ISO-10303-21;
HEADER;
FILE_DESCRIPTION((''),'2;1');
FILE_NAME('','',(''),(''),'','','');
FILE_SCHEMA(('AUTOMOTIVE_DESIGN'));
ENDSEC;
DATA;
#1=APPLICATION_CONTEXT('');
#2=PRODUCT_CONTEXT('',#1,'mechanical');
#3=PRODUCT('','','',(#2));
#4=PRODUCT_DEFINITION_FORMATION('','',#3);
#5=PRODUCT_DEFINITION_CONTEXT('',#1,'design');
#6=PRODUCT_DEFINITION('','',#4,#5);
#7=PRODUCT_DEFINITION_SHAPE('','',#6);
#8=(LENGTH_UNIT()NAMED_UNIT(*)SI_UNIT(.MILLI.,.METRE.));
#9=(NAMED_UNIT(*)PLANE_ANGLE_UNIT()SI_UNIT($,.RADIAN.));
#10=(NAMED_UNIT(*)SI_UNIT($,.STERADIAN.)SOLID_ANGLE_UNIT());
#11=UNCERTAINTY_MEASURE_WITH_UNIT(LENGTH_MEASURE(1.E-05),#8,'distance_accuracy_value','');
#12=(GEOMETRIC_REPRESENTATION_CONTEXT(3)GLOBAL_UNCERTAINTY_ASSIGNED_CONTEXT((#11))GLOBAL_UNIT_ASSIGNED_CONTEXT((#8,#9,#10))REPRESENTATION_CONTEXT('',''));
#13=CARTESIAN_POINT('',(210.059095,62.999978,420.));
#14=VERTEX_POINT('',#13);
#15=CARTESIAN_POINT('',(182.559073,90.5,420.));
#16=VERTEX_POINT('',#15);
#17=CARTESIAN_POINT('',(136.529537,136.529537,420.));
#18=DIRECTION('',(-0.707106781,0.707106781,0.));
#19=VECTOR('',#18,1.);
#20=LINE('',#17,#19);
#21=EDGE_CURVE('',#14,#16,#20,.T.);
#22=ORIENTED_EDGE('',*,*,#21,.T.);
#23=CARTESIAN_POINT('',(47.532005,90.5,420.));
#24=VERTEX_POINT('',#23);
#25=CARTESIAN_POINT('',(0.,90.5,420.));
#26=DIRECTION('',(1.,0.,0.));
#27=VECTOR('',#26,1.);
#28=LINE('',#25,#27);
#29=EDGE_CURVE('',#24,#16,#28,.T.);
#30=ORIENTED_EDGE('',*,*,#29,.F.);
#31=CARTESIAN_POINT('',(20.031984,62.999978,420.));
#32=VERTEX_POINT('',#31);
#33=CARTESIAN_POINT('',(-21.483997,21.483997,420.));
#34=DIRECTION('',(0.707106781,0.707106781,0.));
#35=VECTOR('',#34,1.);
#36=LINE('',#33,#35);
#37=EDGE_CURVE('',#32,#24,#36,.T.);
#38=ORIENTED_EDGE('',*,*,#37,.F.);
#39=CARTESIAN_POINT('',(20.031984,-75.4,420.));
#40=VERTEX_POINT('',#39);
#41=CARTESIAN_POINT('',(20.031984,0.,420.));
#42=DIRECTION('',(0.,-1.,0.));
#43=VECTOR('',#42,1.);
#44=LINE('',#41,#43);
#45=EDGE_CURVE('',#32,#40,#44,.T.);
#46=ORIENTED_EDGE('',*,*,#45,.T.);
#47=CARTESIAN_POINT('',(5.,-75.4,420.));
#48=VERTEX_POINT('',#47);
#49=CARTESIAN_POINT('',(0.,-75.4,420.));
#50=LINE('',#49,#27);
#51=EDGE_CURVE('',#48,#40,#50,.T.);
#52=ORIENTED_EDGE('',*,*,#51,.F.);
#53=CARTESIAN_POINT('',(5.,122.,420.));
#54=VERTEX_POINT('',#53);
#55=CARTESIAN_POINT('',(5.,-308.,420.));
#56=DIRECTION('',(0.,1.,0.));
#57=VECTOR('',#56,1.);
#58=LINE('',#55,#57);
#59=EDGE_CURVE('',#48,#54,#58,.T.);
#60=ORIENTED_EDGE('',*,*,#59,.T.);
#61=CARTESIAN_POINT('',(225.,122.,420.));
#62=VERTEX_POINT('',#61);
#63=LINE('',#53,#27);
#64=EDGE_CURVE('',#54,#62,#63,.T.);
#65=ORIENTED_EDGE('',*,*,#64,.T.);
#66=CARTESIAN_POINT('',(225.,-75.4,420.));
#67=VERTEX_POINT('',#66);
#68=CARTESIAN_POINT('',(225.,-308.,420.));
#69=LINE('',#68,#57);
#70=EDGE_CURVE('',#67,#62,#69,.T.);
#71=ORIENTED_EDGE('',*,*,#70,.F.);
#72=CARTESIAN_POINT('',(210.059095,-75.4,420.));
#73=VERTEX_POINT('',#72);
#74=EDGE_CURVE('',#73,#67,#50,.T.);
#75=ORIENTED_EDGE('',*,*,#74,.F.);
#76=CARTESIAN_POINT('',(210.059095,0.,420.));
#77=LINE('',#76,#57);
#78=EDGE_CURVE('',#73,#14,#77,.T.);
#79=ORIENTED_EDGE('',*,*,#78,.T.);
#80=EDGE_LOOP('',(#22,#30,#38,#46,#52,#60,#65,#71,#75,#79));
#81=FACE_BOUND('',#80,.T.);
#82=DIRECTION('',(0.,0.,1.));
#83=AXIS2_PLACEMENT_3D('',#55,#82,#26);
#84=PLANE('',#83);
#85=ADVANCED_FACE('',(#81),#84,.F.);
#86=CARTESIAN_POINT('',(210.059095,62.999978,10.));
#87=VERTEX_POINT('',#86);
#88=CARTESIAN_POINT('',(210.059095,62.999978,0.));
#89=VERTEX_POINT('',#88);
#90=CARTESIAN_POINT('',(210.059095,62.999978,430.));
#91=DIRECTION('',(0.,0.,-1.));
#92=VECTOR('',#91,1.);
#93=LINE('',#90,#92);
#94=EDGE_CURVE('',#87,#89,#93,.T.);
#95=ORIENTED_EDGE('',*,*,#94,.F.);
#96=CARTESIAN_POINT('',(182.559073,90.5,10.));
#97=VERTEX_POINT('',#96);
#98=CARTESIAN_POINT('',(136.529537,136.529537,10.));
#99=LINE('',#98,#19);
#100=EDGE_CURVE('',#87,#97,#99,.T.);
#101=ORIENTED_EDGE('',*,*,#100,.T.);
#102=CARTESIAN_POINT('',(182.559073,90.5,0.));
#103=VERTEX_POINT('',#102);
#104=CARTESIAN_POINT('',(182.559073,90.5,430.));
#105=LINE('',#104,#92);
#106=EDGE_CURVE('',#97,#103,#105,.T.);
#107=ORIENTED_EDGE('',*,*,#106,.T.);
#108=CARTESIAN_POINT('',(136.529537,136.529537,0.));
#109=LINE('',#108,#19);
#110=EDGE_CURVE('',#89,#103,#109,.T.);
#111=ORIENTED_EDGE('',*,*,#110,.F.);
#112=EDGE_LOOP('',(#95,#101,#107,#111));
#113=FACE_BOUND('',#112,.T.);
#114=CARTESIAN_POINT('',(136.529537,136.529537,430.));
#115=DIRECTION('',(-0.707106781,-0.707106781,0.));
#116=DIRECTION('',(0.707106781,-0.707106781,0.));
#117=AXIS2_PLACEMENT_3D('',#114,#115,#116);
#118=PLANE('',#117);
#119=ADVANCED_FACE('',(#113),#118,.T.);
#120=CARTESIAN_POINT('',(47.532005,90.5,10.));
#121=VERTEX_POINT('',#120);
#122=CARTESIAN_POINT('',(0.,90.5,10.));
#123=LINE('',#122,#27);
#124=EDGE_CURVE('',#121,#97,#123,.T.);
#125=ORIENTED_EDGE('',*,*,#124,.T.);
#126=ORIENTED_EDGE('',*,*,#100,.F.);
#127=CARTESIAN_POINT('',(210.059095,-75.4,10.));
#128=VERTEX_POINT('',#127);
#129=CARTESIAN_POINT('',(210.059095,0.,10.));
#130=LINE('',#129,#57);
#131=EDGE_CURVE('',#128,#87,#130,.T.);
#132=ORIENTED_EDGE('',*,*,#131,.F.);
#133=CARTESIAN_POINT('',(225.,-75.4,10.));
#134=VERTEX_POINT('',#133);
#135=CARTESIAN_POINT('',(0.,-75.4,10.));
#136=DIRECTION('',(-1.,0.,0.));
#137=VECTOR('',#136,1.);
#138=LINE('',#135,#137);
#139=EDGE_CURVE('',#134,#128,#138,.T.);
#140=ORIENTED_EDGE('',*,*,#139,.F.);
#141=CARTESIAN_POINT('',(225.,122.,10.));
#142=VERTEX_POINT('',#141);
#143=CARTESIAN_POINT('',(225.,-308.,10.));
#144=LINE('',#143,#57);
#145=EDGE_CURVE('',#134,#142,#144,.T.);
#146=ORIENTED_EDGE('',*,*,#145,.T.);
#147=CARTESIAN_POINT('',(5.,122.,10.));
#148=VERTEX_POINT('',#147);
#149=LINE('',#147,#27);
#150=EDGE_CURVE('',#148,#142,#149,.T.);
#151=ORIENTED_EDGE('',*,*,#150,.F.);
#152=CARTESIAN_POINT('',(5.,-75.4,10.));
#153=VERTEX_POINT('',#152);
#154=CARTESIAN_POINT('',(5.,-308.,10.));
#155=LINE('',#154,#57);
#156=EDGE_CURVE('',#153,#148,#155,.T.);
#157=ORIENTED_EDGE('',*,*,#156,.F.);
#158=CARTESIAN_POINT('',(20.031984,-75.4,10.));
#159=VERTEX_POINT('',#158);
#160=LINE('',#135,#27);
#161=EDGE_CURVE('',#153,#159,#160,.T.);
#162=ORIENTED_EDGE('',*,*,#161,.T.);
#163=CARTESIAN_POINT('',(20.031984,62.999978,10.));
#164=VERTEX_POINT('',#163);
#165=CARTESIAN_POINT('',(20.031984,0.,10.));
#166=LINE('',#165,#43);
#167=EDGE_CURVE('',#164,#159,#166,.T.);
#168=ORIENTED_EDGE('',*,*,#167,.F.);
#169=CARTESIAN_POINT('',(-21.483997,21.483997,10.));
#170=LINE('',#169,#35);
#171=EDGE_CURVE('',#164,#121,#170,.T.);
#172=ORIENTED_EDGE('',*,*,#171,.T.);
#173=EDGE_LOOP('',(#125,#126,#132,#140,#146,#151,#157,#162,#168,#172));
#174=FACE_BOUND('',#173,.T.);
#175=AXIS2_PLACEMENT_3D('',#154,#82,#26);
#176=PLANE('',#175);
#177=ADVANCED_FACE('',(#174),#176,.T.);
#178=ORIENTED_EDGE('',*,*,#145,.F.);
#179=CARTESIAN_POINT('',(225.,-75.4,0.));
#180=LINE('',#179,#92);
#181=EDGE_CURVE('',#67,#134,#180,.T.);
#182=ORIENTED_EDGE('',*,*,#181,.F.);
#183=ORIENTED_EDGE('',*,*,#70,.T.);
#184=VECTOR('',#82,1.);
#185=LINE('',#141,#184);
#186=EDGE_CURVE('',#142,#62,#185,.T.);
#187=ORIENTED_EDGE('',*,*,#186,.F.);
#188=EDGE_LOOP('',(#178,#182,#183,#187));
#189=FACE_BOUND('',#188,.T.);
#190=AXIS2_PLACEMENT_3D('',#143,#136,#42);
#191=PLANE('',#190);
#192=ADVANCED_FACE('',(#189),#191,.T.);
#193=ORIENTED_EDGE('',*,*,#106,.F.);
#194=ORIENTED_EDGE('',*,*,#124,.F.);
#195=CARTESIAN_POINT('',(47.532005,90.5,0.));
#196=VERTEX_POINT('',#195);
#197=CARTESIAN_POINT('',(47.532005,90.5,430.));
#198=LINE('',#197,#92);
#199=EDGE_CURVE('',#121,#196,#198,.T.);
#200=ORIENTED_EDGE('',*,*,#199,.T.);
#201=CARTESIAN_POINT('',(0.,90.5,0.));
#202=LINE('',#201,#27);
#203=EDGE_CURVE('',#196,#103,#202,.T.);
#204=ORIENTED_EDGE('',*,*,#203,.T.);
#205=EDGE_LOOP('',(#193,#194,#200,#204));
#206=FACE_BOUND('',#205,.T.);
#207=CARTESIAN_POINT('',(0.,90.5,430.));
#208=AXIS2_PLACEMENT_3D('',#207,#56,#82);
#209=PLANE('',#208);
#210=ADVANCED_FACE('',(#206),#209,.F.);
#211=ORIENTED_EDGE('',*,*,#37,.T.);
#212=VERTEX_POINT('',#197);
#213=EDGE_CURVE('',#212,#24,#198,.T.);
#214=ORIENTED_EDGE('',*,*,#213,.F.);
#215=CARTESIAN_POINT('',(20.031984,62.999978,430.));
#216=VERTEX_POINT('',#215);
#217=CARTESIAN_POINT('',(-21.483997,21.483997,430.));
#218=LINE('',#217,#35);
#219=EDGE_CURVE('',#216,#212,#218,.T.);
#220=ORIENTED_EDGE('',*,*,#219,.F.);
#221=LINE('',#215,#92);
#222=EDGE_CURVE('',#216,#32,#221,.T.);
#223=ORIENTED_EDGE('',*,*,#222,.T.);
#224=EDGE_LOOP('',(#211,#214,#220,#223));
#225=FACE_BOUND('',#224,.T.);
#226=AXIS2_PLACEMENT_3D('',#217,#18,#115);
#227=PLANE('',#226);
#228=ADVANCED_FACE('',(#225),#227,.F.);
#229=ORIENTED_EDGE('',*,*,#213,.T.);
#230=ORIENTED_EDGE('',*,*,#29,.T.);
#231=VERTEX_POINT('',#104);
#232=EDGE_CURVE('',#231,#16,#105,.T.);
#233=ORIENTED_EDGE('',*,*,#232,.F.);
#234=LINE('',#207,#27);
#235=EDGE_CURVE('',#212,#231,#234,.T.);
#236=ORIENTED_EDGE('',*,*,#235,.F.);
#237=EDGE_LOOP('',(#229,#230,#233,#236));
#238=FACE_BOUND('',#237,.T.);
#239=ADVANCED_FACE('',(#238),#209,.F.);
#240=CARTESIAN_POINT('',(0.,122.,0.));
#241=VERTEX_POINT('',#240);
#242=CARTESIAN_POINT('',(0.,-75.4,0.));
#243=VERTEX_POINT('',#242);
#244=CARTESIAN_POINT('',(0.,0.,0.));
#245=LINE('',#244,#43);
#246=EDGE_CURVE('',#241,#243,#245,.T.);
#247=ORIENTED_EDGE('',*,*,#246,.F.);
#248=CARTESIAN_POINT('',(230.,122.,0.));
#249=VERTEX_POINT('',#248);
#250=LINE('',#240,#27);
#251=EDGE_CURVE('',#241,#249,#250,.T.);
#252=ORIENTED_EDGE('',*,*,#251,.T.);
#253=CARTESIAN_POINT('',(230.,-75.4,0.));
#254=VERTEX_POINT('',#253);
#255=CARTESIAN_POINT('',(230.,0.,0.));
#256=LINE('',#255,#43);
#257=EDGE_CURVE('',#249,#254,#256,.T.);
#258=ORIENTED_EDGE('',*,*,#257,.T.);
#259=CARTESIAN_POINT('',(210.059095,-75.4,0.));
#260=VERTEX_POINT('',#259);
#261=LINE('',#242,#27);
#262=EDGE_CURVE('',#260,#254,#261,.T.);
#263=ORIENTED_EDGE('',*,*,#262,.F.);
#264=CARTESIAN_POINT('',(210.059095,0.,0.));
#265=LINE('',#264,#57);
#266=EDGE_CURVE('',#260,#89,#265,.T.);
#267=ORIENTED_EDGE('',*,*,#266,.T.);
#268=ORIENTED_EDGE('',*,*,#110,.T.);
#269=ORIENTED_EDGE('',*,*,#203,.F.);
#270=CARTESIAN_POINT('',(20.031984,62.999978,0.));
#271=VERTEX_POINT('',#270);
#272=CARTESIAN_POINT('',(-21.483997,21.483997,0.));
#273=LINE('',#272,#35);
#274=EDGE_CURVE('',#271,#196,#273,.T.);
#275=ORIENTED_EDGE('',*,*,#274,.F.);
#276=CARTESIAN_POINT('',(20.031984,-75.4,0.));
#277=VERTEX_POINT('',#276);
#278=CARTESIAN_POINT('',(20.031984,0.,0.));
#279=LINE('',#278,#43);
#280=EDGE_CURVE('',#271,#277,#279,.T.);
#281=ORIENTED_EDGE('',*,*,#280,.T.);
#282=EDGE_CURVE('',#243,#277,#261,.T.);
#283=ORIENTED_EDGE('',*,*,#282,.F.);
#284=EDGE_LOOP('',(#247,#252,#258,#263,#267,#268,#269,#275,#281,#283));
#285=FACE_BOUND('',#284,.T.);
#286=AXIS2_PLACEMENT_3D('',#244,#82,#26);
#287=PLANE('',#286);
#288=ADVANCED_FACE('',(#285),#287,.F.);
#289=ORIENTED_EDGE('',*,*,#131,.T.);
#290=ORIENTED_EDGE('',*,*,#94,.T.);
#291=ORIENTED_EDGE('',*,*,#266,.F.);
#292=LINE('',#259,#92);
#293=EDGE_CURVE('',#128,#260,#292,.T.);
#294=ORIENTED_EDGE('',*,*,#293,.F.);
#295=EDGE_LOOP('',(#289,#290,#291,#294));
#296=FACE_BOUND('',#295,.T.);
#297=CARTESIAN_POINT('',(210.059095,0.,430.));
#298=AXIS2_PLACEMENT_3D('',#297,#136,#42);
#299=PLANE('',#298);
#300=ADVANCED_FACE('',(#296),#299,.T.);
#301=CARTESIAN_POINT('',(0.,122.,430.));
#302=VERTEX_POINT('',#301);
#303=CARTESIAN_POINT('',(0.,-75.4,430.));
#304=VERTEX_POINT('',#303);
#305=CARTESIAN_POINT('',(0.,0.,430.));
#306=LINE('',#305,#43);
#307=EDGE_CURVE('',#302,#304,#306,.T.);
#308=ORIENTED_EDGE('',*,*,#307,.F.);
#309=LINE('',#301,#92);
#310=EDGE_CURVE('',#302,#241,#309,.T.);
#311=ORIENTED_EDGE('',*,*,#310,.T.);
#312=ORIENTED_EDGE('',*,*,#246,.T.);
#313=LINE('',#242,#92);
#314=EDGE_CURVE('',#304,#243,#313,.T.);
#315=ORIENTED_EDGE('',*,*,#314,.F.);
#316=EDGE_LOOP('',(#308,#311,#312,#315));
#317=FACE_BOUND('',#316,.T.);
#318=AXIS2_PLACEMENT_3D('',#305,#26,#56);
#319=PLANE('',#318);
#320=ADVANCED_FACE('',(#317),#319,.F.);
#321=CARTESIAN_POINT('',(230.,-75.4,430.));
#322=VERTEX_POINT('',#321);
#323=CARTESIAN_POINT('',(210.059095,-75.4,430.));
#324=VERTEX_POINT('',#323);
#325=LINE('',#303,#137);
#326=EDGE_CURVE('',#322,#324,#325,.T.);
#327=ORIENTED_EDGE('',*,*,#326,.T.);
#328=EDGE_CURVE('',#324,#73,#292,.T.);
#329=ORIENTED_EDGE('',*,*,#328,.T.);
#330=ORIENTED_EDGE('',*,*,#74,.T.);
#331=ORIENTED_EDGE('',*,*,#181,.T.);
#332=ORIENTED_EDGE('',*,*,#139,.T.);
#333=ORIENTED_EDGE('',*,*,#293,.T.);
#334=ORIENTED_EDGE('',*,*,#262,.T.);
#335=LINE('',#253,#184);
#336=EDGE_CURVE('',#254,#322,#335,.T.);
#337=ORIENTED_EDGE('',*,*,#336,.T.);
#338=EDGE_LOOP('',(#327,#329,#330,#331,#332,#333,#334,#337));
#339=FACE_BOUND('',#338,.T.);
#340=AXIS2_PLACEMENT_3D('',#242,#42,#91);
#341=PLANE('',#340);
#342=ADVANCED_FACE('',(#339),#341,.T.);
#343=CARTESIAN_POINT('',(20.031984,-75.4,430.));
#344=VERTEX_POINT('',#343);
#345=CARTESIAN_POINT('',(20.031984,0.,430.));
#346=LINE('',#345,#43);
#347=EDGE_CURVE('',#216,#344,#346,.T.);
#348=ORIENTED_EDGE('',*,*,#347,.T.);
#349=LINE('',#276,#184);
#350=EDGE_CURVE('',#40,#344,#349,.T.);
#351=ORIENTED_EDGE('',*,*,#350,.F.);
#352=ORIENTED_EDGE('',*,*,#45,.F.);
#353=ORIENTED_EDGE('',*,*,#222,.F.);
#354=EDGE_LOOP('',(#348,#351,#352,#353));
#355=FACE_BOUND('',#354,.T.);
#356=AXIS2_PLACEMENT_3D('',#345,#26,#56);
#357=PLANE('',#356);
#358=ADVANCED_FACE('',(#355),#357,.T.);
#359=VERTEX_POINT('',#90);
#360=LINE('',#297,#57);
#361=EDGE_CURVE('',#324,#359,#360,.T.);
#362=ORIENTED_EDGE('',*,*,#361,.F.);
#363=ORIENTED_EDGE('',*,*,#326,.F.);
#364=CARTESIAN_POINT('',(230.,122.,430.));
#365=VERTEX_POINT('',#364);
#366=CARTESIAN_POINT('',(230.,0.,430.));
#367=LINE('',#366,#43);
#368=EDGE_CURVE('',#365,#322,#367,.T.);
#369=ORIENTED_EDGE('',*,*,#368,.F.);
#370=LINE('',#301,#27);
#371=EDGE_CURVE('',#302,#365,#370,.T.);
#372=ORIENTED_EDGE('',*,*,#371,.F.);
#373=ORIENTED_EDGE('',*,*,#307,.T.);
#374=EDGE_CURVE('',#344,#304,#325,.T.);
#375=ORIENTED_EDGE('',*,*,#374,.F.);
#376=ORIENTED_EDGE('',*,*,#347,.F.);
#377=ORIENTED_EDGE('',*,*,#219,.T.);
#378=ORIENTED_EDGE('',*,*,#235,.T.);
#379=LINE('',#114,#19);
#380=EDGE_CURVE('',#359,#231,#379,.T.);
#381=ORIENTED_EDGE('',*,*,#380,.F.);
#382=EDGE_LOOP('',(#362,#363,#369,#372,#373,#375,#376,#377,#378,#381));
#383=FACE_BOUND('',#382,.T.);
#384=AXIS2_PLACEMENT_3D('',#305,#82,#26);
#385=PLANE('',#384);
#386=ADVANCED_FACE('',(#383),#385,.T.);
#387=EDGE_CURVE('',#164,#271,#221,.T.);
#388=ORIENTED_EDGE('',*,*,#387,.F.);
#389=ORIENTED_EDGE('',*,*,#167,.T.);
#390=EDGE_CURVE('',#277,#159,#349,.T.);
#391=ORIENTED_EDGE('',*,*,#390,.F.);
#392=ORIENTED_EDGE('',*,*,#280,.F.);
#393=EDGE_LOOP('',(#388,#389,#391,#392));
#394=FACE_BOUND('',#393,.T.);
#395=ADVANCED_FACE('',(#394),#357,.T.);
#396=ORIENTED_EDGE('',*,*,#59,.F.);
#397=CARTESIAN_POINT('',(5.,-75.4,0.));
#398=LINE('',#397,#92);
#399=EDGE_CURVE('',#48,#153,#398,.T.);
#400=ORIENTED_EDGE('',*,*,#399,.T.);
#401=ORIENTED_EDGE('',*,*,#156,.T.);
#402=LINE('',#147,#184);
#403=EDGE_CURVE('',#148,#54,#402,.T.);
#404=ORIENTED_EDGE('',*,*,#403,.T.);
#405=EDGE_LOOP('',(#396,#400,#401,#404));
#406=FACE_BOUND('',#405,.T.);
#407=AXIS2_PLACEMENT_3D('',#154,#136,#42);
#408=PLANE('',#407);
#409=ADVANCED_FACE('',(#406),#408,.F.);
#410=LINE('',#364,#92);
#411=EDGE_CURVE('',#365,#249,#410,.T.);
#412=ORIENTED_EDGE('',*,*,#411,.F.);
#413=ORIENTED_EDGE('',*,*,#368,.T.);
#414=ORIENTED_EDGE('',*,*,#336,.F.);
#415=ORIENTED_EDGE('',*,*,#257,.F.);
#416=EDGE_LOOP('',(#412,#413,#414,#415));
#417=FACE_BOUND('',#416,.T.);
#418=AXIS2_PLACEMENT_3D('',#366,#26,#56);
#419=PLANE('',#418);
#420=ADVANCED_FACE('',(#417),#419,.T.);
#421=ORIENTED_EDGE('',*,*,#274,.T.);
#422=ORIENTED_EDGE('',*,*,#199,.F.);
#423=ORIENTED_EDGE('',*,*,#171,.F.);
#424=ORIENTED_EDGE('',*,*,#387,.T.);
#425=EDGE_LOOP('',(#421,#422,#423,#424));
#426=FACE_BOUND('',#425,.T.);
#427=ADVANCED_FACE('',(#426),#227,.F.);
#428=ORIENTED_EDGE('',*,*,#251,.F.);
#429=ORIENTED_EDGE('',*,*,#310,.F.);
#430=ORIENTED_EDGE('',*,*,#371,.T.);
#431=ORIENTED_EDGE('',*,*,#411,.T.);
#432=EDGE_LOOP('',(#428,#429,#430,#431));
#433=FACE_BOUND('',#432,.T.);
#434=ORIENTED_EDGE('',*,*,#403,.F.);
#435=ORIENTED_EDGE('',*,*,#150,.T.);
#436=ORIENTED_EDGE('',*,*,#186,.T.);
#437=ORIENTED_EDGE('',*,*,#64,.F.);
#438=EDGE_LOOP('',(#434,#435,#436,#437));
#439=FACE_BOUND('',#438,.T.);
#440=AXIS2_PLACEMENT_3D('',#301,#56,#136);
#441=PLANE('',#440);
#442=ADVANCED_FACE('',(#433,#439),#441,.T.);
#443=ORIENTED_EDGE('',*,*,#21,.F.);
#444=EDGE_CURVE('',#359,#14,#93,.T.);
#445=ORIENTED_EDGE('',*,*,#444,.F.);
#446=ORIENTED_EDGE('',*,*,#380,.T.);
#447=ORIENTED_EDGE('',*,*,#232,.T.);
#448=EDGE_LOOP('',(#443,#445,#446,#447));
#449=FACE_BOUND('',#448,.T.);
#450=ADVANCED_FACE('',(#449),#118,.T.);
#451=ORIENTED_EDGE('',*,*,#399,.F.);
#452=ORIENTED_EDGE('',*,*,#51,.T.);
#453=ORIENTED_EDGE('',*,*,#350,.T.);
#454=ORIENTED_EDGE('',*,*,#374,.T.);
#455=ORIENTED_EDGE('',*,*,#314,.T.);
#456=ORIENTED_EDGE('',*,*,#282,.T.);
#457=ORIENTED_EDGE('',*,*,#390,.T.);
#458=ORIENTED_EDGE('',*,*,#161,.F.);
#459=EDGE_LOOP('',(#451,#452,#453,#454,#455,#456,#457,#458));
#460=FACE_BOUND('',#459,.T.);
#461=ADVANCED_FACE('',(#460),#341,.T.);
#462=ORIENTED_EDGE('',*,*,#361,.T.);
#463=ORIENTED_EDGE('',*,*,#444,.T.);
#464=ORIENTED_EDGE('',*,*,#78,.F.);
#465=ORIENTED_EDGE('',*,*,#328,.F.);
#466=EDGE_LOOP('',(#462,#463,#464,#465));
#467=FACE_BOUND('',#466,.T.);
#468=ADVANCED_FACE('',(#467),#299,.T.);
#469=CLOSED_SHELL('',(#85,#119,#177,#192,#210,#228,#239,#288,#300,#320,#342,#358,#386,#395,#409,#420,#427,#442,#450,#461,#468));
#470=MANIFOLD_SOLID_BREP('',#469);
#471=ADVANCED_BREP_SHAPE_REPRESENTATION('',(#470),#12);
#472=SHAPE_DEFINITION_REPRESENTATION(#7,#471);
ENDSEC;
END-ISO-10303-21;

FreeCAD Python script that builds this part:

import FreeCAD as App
import Part
import Sketcher
Q = App.Units.Quantity

doc = App.newDocument("Part")
body = doc.addObject("PartDesign::Body", "Body")

sketch1 = body.newObject("Sketcher::SketchObject", "Sketch")
sketch1.AttachmentSupport = (doc.getObject("XY_Plane"), [""])
sketch1.MapMode = "FlatFace"
sketch1.addGeometry([
    Part.LineSegment(App.Vector(230, 122, 0), App.Vector(0, 122, 0)),
    Part.LineSegment(App.Vector(0, 122, 0), App.Vector(0, 0, 0)),
    Part.LineSegment(App.Vector(0, 0, 0), App.Vector(50, 0, 0)),
    Part.LineSegment(App.Vector(50, 0, 0), App.Vector(50, 30, 0)),
    Part.LineSegment(App.Vector(50, 30, 0), App.Vector(28.531984, 30, 0)),
    Part.LineSegment(App.Vector(28.531984, 30, 0), App.Vector(28.531984, 38.499978, 0)),
    Part.LineSegment(App.Vector(28.531984, 38.499978, 0), App.Vector(20.031984, 38.499978, 0)),
    Part.LineSegment(App.Vector(20.031984, 38.499978, 0), App.Vector(20.031984, 62.999978, 0)),
    Part.LineSegment(App.Vector(20.031984, 62.999978, 0), App.Vector(47.532005, 90.5, 0)),
    Part.LineSegment(App.Vector(47.532005, 90.5, 0), App.Vector(182.559073, 90.5, 0)),
    Part.LineSegment(App.Vector(182.559073, 90.5, 0), App.Vector(210.059095, 62.999978, 0)),
    Part.LineSegment(App.Vector(210.059095, 62.999978, 0), App.Vector(210.059095, 38.499978, 0)),
    Part.LineSegment(App.Vector(210.059095, 38.499978, 0), App.Vector(201.559095, 38.499978, 0)),
    Part.LineSegment(App.Vector(201.559095, 38.499978, 0), App.Vector(201.559095, 30, 0)),
    Part.LineSegment(App.Vector(201.559095, 30, 0), App.Vector(180, 30, 0)),
    Part.LineSegment(App.Vector(180, 30, 0), App.Vector(180, 0, 0)),
    Part.LineSegment(App.Vector(180, 0, 0), App.Vector(230, 0, 0)),
    Part.LineSegment(App.Vector(230, 0, 0), App.Vector(230, 122, 0)),
], False)
sketch1.addConstraint([
    Sketcher.Constraint("Coincident", 0, 2, 1, 1),
    Sketcher.Constraint("Coincident", 1, 2, 2, 1),
    Sketcher.Constraint("Coincident", 2, 2, 3, 1),
    Sketcher.Constraint("Coincident", 3, 2, 4, 1),
    Sketcher.Constraint("Coincident", 4, 2, 5, 1),
    Sketcher.Constraint("Coincident", 5, 2, 6, 1),
    Sketcher.Constraint("Coincident", 6, 2, 7, 1),
    Sketcher.Constraint("Coincident", 7, 2, 8, 1),
    Sketcher.Constraint("Coincident", 8, 2, 9, 1),
    Sketcher.Constraint("Coincident", 9, 2, 10, 1),
    Sketcher.Constraint("Coincident", 10, 2, 11, 1),
    Sketcher.Constraint("Coincident", 11, 2, 12, 1),
    Sketcher.Constraint("Coincident", 12, 2, 13, 1),
    Sketcher.Constraint("Coincident", 13, 2, 14, 1),
    Sketcher.Constraint("Coincident", 14, 2, 15, 1),
    Sketcher.Constraint("Coincident", 15, 2, 16, 1),
    Sketcher.Constraint("Coincident", 16, 2, 17, 1),
    Sketcher.Constraint("Coincident", 17, 2, 0, 1),
    Sketcher.Constraint("Horizontal", 0),
    Sketcher.Constraint("Vertical", 1),
    Sketcher.Constraint("Horizontal", 2),
    Sketcher.Constraint("Vertical", 3),
    Sketcher.Constraint("Horizontal", 4),
    Sketcher.Constraint("Vertical", 5),
    Sketcher.Constraint("Horizontal", 6),
    Sketcher.Constraint("Vertical", 7),
    Sketcher.Constraint("Horizontal", 9),
    Sketcher.Constraint("Vertical", 11),
    Sketcher.Constraint("Horizontal", 12),
    Sketcher.Constraint("Vertical", 13),
    Sketcher.Constraint("Horizontal", 14),
    Sketcher.Constraint("Vertical", 15),
    Sketcher.Constraint("Horizontal", 16),
    Sketcher.Constraint("Vertical", 17),
    Sketcher.Constraint("Coincident", 1, 2, -1, 1),
    Sketcher.Constraint("PointOnObject", 15, 2, -1),
    Sketcher.Constraint("Perpendicular", 8, 10),
    Sketcher.Constraint("Horizontal", 7, 2, 10, 2),
    Sketcher.Constraint("Horizontal", 6, 2, 11, 2),
    Sketcher.Constraint("Horizontal", 4, 2, 13, 2),
    Sketcher.Constraint("Equal", 6, 12),
    Sketcher.Constraint("Equal", 2, 16),
    Sketcher.Constraint("Equal", 8, 10),
    Sketcher.Constraint("DistanceX", 0, 2, 0, 1, Q("230 mm")),
    Sketcher.Constraint("DistanceX", 2, 1, 2, 2, Q("50 mm")),
    Sketcher.Constraint("DistanceY", 1, 2, 1, 1, Q("122 mm")),
    Sketcher.Constraint("DistanceY", 3, 1, 3, 2, Q("30 mm")),
    Sketcher.Constraint("DistanceX", 6, 2, 6, 1, Q("8.5 mm")),
    Sketcher.Constraint("DistanceY", 7, 1, 7, 2, Q("24.5 mm")),
    Sketcher.Constraint("DistanceY", -1, 1, 8, 2, Q("90.5 mm")),
    Sketcher.Constraint("DistanceX", 9, 1, 9, 2, Q("135.027068 mm")),
    Sketcher.Constraint("DistanceY", 5, 1, 5, 2, Q("8.499978 mm")),
    Sketcher.Constraint("DistanceX", 4, 2, 4, 1, Q("21.468016 mm")),
])
pad1 = body.newObject("PartDesign::Pad", "Pad")
pad1.Profile = sketch1
pad1.Length = 430

sketch2 = body.newObject("Sketcher::SketchObject", "Sketch001")
sketch2.AttachmentSupport = (doc.getObject("XZ_Plane"), [""])
sketch2.MapMode = "FlatFace"
sketch2.AttachmentOffset = App.Placement(App.Vector(0, 0, -122), App.Rotation())
sketch2.addGeometry([
    Part.LineSegment(App.Vector(5, 10, 0), App.Vector(5, 420, 0)),
    Part.LineSegment(App.Vector(5, 420, 0), App.Vector(225, 420, 0)),
    Part.LineSegment(App.Vector(225, 420, 0), App.Vector(225, 10, 0)),
    Part.LineSegment(App.Vector(225, 10, 0), App.Vector(5, 10, 0)),
], False)
sketch2.addConstraint([
    Sketcher.Constraint("Coincident", 0, 2, 1, 1),
    Sketcher.Constraint("Coincident", 1, 2, 2, 1),
    Sketcher.Constraint("Coincident", 2, 2, 3, 1),
    Sketcher.Constraint("Coincident", 3, 2, 0, 1),
    Sketcher.Constraint("Vertical", 0),
    Sketcher.Constraint("Horizontal", 1),
    Sketcher.Constraint("Vertical", 2),
    Sketcher.Constraint("Horizontal", 3),
    Sketcher.Constraint("DistanceX", 1, 1, 1, 2, Q("220 mm")),
    Sketcher.Constraint("DistanceY", 0, 1, 0, 2, Q("410 mm")),
    Sketcher.Constraint("DistanceX", -1, 1, 0, 2, Q("5 mm")),
    Sketcher.Constraint("DistanceY", -1, 1, 0, 2, Q("420 mm")),
])
pocket1 = body.newObject("PartDesign::Pocket", "Pocket")
pocket1.Profile = sketch2
pocket1.Length = 430
pocket1.Reversed = True

sketch3 = body.newObject("Sketcher::SketchObject", "Sketch002")
sketch3.AttachmentSupport = (doc.getObject("XY_Plane"), [""])
sketch3.MapMode = "FlatFace"
sketch3.AttachmentOffset = App.Placement(App.Vector(0, 0, 10), App.Rotation())
sketch3.addGeometry([
    Part.LineSegment(App.Vector(43, 30, 0), App.Vector(43, 0, 0)),
    Part.LineSegment(App.Vector(43, 0, 0), App.Vector(50, 0, 0)),
    Part.LineSegment(App.Vector(50, 0, 0), App.Vector(50, 30, 0)),
    Part.LineSegment(App.Vector(50, 30, 0), App.Vector(43, 30, 0)),
    Part.LineSegment(App.Vector(180, 30, 0), App.Vector(180, 0, 0)),
    Part.LineSegment(App.Vector(180, 0, 0), App.Vector(187, 0, 0)),
    Part.LineSegment(App.Vector(187, 0, 0), App.Vector(187, 30, 0)),
    Part.LineSegment(App.Vector(187, 30, 0), App.Vector(180, 30, 0)),
], False)
sketch3.addConstraint([
    Sketcher.Constraint("Coincident", 0, 2, 1, 1),
    Sketcher.Constraint("Coincident", 1, 2, 2, 1),
    Sketcher.Constraint("Coincident", 2, 2, 3, 1),
    Sketcher.Constraint("Coincident", 3, 2, 0, 1),
    Sketcher.Constraint("Coincident", 4, 2, 5, 1),
    Sketcher.Constraint("Coincident", 5, 2, 6, 1),
    Sketcher.Constraint("Coincident", 6, 2, 7, 1),
    Sketcher.Constraint("Coincident", 7, 2, 4, 1),
    Sketcher.Constraint("Vertical", 0),
    Sketcher.Constraint("Horizontal", 1),
    Sketcher.Constraint("Vertical", 2),
    Sketcher.Constraint("Horizontal", 3),
    Sketcher.Constraint("Vertical", 4),
    Sketcher.Constraint("Horizontal", 5),
    Sketcher.Constraint("Vertical", 6),
    Sketcher.Constraint("Horizontal", 7),
    Sketcher.Constraint("PointOnObject", 0, 2, -1),
    Sketcher.Constraint("PointOnObject", 4, 2, -1),
    Sketcher.Constraint("Horizontal", 3, 2, 6, 2),
    Sketcher.Constraint("Equal", 3, 5),
    Sketcher.Constraint("DistanceX", 1, 1, 1, 2, Q("7 mm")),
    Sketcher.Constraint("DistanceY", 0, 2, 0, 1, Q("30 mm")),
    Sketcher.Constraint("DistanceX", -1, 1, 0, 2, Q("43 mm")),
    Sketcher.Constraint("DistanceX", -1, 1, 4, 2, Q("180 mm")),
])
pad2 = body.newObject("PartDesign::Pad", "Pad001")
pad2.Profile = sketch3
pad2.Length = 30

sketch4 = body.newObject("Sketcher::SketchObject", "Sketch003")
sketch4.AttachmentSupport = (doc.getObject("XY_Plane"), [""])
sketch4.MapMode = "FlatFace"
sketch4.AttachmentOffset = App.Placement(App.Vector(0, 0, 420), App.Rotation())
sketch4.addGeometry([
    Part.LineSegment(App.Vector(187, 30, 0), App.Vector(187, 0, 0)),
    Part.LineSegment(App.Vector(187, 0, 0), App.Vector(180, 0, 0)),
    Part.LineSegment(App.Vector(180, 0, 0), App.Vector(180, 30, 0)),
    Part.LineSegment(App.Vector(180, 30, 0), App.Vector(187, 30, 0)),
    Part.LineSegment(App.Vector(50, 30, 0), App.Vector(50, 0, 0)),
    Part.LineSegment(App.Vector(50, 0, 0), App.Vector(43, 0, 0)),
    Part.LineSegment(App.Vector(43, 0, 0), App.Vector(43, 30, 0)),
    Part.LineSegment(App.Vector(43, 30, 0), App.Vector(50, 30, 0)),
], False)
sketch4.addConstraint([
    Sketcher.Constraint("Coincident", 0, 2, 1, 1),
    Sketcher.Constraint("Coincident", 1, 2, 2, 1),
    Sketcher.Constraint("Coincident", 2, 2, 3, 1),
    Sketcher.Constraint("Coincident", 3, 2, 0, 1),
    Sketcher.Constraint("Coincident", 4, 2, 5, 1),
    Sketcher.Constraint("Coincident", 5, 2, 6, 1),
    Sketcher.Constraint("Coincident", 6, 2, 7, 1),
    Sketcher.Constraint("Coincident", 7, 2, 4, 1),
    Sketcher.Constraint("Vertical", 0),
    Sketcher.Constraint("Horizontal", 1),
    Sketcher.Constraint("Vertical", 2),
    Sketcher.Constraint("Horizontal", 3),
    Sketcher.Constraint("Vertical", 4),
    Sketcher.Constraint("Horizontal", 5),
    Sketcher.Constraint("Vertical", 6),
    Sketcher.Constraint("Horizontal", 7),
    Sketcher.Constraint("PointOnObject", 0, 2, -1),
    Sketcher.Constraint("PointOnObject", 4, 2, -1),
    Sketcher.Constraint("Horizontal", 3, 2, 6, 2),
    Sketcher.Constraint("Equal", 3, 5),
    Sketcher.Constraint("DistanceX", 1, 2, 1, 1, Q("7 mm")),
    Sketcher.Constraint("DistanceY", 0, 2, 0, 1, Q("30 mm")),
    Sketcher.Constraint("DistanceX", -1, 1, 0, 2, Q("187 mm")),
    Sketcher.Constraint("DistanceX", -1, 1, 4, 2, Q("50 mm")),
])
pad3 = body.newObject("PartDesign::Pad", "Pad002")
pad3.Profile = sketch4
pad3.Length = 30
pad3.Reversed = True

sketch5 = body.newObject("Sketcher::SketchObject", "Sketch004")
sketch5.AttachmentSupport = (doc.getObject("XZ_Plane"), [""])
sketch5.MapMode = "FlatFace"
sketch5.addGeometry([
    Part.LineSegment(App.Vector(50, 430, 0), App.Vector(0, 430, 0)),
    Part.LineSegment(App.Vector(0, 430, 0), App.Vector(0, 0, 0)),
    Part.LineSegment(App.Vector(0, 0, 0), App.Vector(50, 0, 0)),
    Part.LineSegment(App.Vector(50, 0, 0), App.Vector(50, 40, 0)),
    Part.LineSegment(App.Vector(50, 40, 0), App.Vector(43, 40, 0)),
    Part.LineSegment(App.Vector(43, 40, 0), App.Vector(43, 10, 0)),
    Part.LineSegment(App.Vector(43, 10, 0), App.Vector(5, 10, 0)),
    Part.LineSegment(App.Vector(5, 10, 0), App.Vector(5, 420, 0)),
    Part.LineSegment(App.Vector(5, 420, 0), App.Vector(43, 420, 0)),
    Part.LineSegment(App.Vector(43, 420, 0), App.Vector(43, 390, 0)),
    Part.LineSegment(App.Vector(43, 390, 0), App.Vector(50, 390, 0)),
    Part.LineSegment(App.Vector(50, 390, 0), App.Vector(50, 430, 0)),
    Part.LineSegment(App.Vector(187, 420, 0), App.Vector(225, 420, 0)),
    Part.LineSegment(App.Vector(225, 420, 0), App.Vector(225, 10, 0)),
    Part.LineSegment(App.Vector(225, 10, 0), App.Vector(187, 10, 0)),
    Part.LineSegment(App.Vector(187, 10, 0), App.Vector(187, 40, 0)),
    Part.LineSegment(App.Vector(187, 40, 0), App.Vector(180, 40, 0)),
    Part.LineSegment(App.Vector(180, 40, 0), App.Vector(180, 0, 0)),
    Part.LineSegment(App.Vector(180, 0, 0), App.Vector(230, 0, 0)),
    Part.LineSegment(App.Vector(230, 0, 0), App.Vector(230, 430, 0)),
    Part.LineSegment(App.Vector(230, 430, 0), App.Vector(180, 430, 0)),
    Part.LineSegment(App.Vector(180, 430, 0), App.Vector(180, 390, 0)),
    Part.LineSegment(App.Vector(180, 390, 0), App.Vector(187, 390, 0)),
    Part.LineSegment(App.Vector(187, 390, 0), App.Vector(187, 420, 0)),
], False)
sketch5.addConstraint([
    Sketcher.Constraint("Coincident", 0, 2, 1, 1),
    Sketcher.Constraint("Coincident", 1, 2, 2, 1),
    Sketcher.Constraint("Coincident", 2, 2, 3, 1),
    Sketcher.Constraint("Coincident", 3, 2, 4, 1),
    Sketcher.Constraint("Coincident", 4, 2, 5, 1),
    Sketcher.Constraint("Coincident", 5, 2, 6, 1),
    Sketcher.Constraint("Coincident", 6, 2, 7, 1),
    Sketcher.Constraint("Coincident", 7, 2, 8, 1),
    Sketcher.Constraint("Coincident", 8, 2, 9, 1),
    Sketcher.Constraint("Coincident", 9, 2, 10, 1),
    Sketcher.Constraint("Coincident", 10, 2, 11, 1),
    Sketcher.Constraint("Coincident", 11, 2, 0, 1),
    Sketcher.Constraint("Coincident", 12, 2, 13, 1),
    Sketcher.Constraint("Coincident", 13, 2, 14, 1),
    Sketcher.Constraint("Coincident", 14, 2, 15, 1),
    Sketcher.Constraint("Coincident", 15, 2, 16, 1),
    Sketcher.Constraint("Coincident", 16, 2, 17, 1),
    Sketcher.Constraint("Coincident", 17, 2, 18, 1),
    Sketcher.Constraint("Coincident", 18, 2, 19, 1),
    Sketcher.Constraint("Coincident", 19, 2, 20, 1),
    Sketcher.Constraint("Coincident", 20, 2, 21, 1),
    Sketcher.Constraint("Coincident", 21, 2, 22, 1),
    Sketcher.Constraint("Coincident", 22, 2, 23, 1),
    Sketcher.Constraint("Coincident", 23, 2, 12, 1),
    Sketcher.Constraint("Horizontal", 0),
    Sketcher.Constraint("Vertical", 1),
    Sketcher.Constraint("Horizontal", 2),
    Sketcher.Constraint("Vertical", 3),
    Sketcher.Constraint("Horizontal", 4),
    Sketcher.Constraint("Vertical", 5),
    Sketcher.Constraint("Horizontal", 6),
    Sketcher.Constraint("Vertical", 7),
    Sketcher.Constraint("Horizontal", 8),
    Sketcher.Constraint("Vertical", 9),
    Sketcher.Constraint("Horizontal", 10),
    Sketcher.Constraint("Vertical", 11),
    Sketcher.Constraint("Horizontal", 12),
    Sketcher.Constraint("Vertical", 13),
    Sketcher.Constraint("Horizontal", 14),
    Sketcher.Constraint("Vertical", 15),
    Sketcher.Constraint("Horizontal", 16),
    Sketcher.Constraint("Vertical", 17),
    Sketcher.Constraint("Horizontal", 18),
    Sketcher.Constraint("Vertical", 19),
    Sketcher.Constraint("Horizontal", 20),
    Sketcher.Constraint("Vertical", 21),
    Sketcher.Constraint("Horizontal", 22),
    Sketcher.Constraint("Vertical", 23),
    Sketcher.Constraint("Coincident", 1, 2, -1, 1),
    Sketcher.Constraint("PointOnObject", 17, 2, -1),
    Sketcher.Constraint("Horizontal", 8, 2, 12, 2),
    Sketcher.Constraint("Horizontal", 6, 2, 13, 2),
    Sketcher.Constraint("Horizontal", 4, 2, 15, 2),
    Sketcher.Constraint("Horizontal", 11, 2, 19, 2),
    Sketcher.Constraint("Horizontal", 10, 2, 21, 2),
    Sketcher.Constraint("Vertical", 5, 2, 8, 2),
    Sketcher.Constraint("Vertical", 3, 2, 10, 2),
    Sketcher.Constraint("Vertical", 17, 2, 20, 2),
    Sketcher.Constraint("Vertical", 15, 2, 22, 2),
    Sketcher.Constraint("Equal", 8, 12),
    Sketcher.Constraint("Equal", 10, 16),
    Sketcher.Constraint("Equal", 2, 18),
    Sketcher.Constraint("Equal", 5, 9),
    Sketcher.Constraint("Equal", 3, 11),
    Sketcher.Constraint("DistanceX", 0, 2, 0, 1, Q("50 mm")),
    Sketcher.Constraint("DistanceX", 4, 2, 4, 1, Q("7 mm")),
    Sketcher.Constraint("DistanceX", 6, 2, 6, 1, Q("38 mm")),
    Sketcher.Constraint("DistanceY", 1, 2, 1, 1, Q("430 mm")),
    Sketcher.Constraint("DistanceY", 3, 1, 3, 2, Q("40 mm")),
    Sketcher.Constraint("DistanceY", 5, 2, 5, 1, Q("30 mm")),
    Sketcher.Constraint("DistanceX", -1, 1, 12, 2, Q("225 mm")),
])
pad4 = body.newObject("PartDesign::Pad", "Pad003")
pad4.Profile = sketch5
pad4.Length = 28

sketch6 = body.newObject("Sketcher::SketchObject", "Sketch005")
sketch6.AttachmentSupport = (doc.getObject("XY_Plane"), [""])
sketch6.MapMode = "FlatFace"
sketch6.addGeometry([
    Part.LineSegment(App.Vector(201.559095, 38.499978, 0), App.Vector(210.059095, 38.499978, 0)),
    Part.LineSegment(App.Vector(210.059095, 38.499978, 0), App.Vector(210.059095, -28, 0)),
    Part.LineSegment(App.Vector(210.059095, -28, 0), App.Vector(180, -28, 0)),
    Part.LineSegment(App.Vector(180, -28, 0), App.Vector(180, 30, 0)),
    Part.LineSegment(App.Vector(180, 30, 0), App.Vector(201.559095, 30, 0)),
    Part.LineSegment(App.Vector(201.559095, 30, 0), App.Vector(201.559095, 38.499978, 0)),
    Part.LineSegment(App.Vector(28.531984, 30, 0), App.Vector(50, 30, 0)),
    Part.LineSegment(App.Vector(50, 30, 0), App.Vector(50, -28, 0)),
    Part.LineSegment(App.Vector(50, -28, 0), App.Vector(20.031984, -28, 0)),
    Part.LineSegment(App.Vector(20.031984, -28, 0), App.Vector(20.031984, 38.499978, 0)),
    Part.LineSegment(App.Vector(20.031984, 38.499978, 0), App.Vector(28.531984, 38.499978, 0)),
    Part.LineSegment(App.Vector(28.531984, 38.499978, 0), App.Vector(28.531984, 30, 0)),
], False)
sketch6.addConstraint([
    Sketcher.Constraint("Coincident", 0, 2, 1, 1),
    Sketcher.Constraint("Coincident", 1, 2, 2, 1),
    Sketcher.Constraint("Coincident", 2, 2, 3, 1),
    Sketcher.Constraint("Coincident", 3, 2, 4, 1),
    Sketcher.Constraint("Coincident", 4, 2, 5, 1),
    Sketcher.Constraint("Coincident", 5, 2, 0, 1),
    Sketcher.Constraint("Coincident", 6, 2, 7, 1),
    Sketcher.Constraint("Coincident", 7, 2, 8, 1),
    Sketcher.Constraint("Coincident", 8, 2, 9, 1),
    Sketcher.Constraint("Coincident", 9, 2, 10, 1),
    Sketcher.Constraint("Coincident", 10, 2, 11, 1),
    Sketcher.Constraint("Coincident", 11, 2, 6, 1),
    Sketcher.Constraint("Horizontal", 0),
    Sketcher.Constraint("Vertical", 1),
    Sketcher.Constraint("Horizontal", 2),
    Sketcher.Constraint("Vertical", 3),
    Sketcher.Constraint("Horizontal", 4),
    Sketcher.Constraint("Vertical", 5),
    Sketcher.Constraint("Horizontal", 6),
    Sketcher.Constraint("Vertical", 7),
    Sketcher.Constraint("Horizontal", 8),
    Sketcher.Constraint("Vertical", 9),
    Sketcher.Constraint("Horizontal", 10),
    Sketcher.Constraint("Vertical", 11),
    Sketcher.Constraint("Horizontal", 4, 2, 6, 2),
    Sketcher.Constraint("Horizontal", 2, 2, 7, 2),
    Sketcher.Constraint("Horizontal", 5, 2, 9, 2),
    Sketcher.Constraint("Equal", 0, 10),
    Sketcher.Constraint("DistanceY", 3, 1, 3, 2, Q("58 mm")),
    Sketcher.Constraint("DistanceX", 0, 1, 0, 2, Q("8.5 mm")),
    Sketcher.Constraint("DistanceY", 1, 2, -1, 1, Q("28 mm")),
    Sketcher.Constraint("DistanceX", -1, 1, 2, 2, Q("180 mm")),
    Sketcher.Constraint("DistanceX", -1, 1, 6, 2, Q("50 mm")),
    Sketcher.Constraint("DistanceY", 1, 2, 1, 1, Q("66.499978 mm")),
    Sketcher.Constraint("DistanceX", 2, 2, 2, 1, Q("30.059095 mm")),
    Sketcher.Constraint("DistanceX", 6, 1, 6, 2, Q("21.468016 mm")),
])
pocket2 = body.newObject("PartDesign::Pocket", "Pocket001")
pocket2.Profile = sketch6
pocket2.Length = 430
pocket2.Reversed = True

sketch7 = body.newObject("Sketcher::SketchObject", "Sketch006")
sketch7.AttachmentSupport = (doc.getObject("XZ_Plane"), [""])
sketch7.MapMode = "FlatFace"
sketch7.AttachmentOffset = App.Placement(App.Vector(0, 0, 28), App.Rotation())
sketch7.addGeometry([
    Part.LineSegment(App.Vector(210.059095, 0, 0), App.Vector(230, 0, 0)),
    Part.LineSegment(App.Vector(230, 0, 0), App.Vector(230, 430, 0)),
    Part.LineSegment(App.Vector(230, 430, 0), App.Vector(210.059095, 430, 0)),
    Part.LineSegment(App.Vector(210.059095, 430, 0), App.Vector(210.059095, 420, 0)),
    Part.LineSegment(App.Vector(210.059095, 420, 0), App.Vector(225, 420, 0)),
    Part.LineSegment(App.Vector(225, 420, 0), App.Vector(225, 10, 0)),
    Part.LineSegment(App.Vector(225, 10, 0), App.Vector(210.059095, 10, 0)),
    Part.LineSegment(App.Vector(210.059095, 10, 0), App.Vector(210.059095, 0, 0)),
    Part.LineSegment(App.Vector(5, 10, 0), App.Vector(5, 420, 0)),
    Part.LineSegment(App.Vector(5, 420, 0), App.Vector(20.031984, 420, 0)),
    Part.LineSegment(App.Vector(20.031984, 420, 0), App.Vector(20.031984, 430, 0)),
    Part.LineSegment(App.Vector(20.031984, 430, 0), App.Vector(0, 430, 0)),
    Part.LineSegment(App.Vector(0, 430, 0), App.Vector(0, 0, 0)),
    Part.LineSegment(App.Vector(0, 0, 0), App.Vector(20.031984, 0, 0)),
    Part.LineSegment(App.Vector(20.031984, 0, 0), App.Vector(20.031984, 10, 0)),
    Part.LineSegment(App.Vector(20.031984, 10, 0), App.Vector(5, 10, 0)),
], False)
sketch7.addConstraint([
    Sketcher.Constraint("Coincident", 0, 2, 1, 1),
    Sketcher.Constraint("Coincident", 1, 2, 2, 1),
    Sketcher.Constraint("Coincident", 2, 2, 3, 1),
    Sketcher.Constraint("Coincident", 3, 2, 4, 1),
    Sketcher.Constraint("Coincident", 4, 2, 5, 1),
    Sketcher.Constraint("Coincident", 5, 2, 6, 1),
    Sketcher.Constraint("Coincident", 6, 2, 7, 1),
    Sketcher.Constraint("Coincident", 7, 2, 0, 1),
    Sketcher.Constraint("Coincident", 8, 2, 9, 1),
    Sketcher.Constraint("Coincident", 9, 2, 10, 1),
    Sketcher.Constraint("Coincident", 10, 2, 11, 1),
    Sketcher.Constraint("Coincident", 11, 2, 12, 1),
    Sketcher.Constraint("Coincident", 12, 2, 13, 1),
    Sketcher.Constraint("Coincident", 13, 2, 14, 1),
    Sketcher.Constraint("Coincident", 14, 2, 15, 1),
    Sketcher.Constraint("Coincident", 15, 2, 8, 1),
    Sketcher.Constraint("Horizontal", 0),
    Sketcher.Constraint("Vertical", 1),
    Sketcher.Constraint("Horizontal", 2),
    Sketcher.Constraint("Vertical", 3),
    Sketcher.Constraint("Horizontal", 4),
    Sketcher.Constraint("Vertical", 5),
    Sketcher.Constraint("Horizontal", 6),
    Sketcher.Constraint("Vertical", 7),
    Sketcher.Constraint("Vertical", 8),
    Sketcher.Constraint("Horizontal", 9),
    Sketcher.Constraint("Vertical", 10),
    Sketcher.Constraint("Horizontal", 11),
    Sketcher.Constraint("Vertical", 12),
    Sketcher.Constraint("Horizontal", 13),
    Sketcher.Constraint("Vertical", 14),
    Sketcher.Constraint("Horizontal", 15),
    Sketcher.Constraint("Coincident", 12, 2, -1, 1),
    Sketcher.Constraint("PointOnObject", 0, 2, -1),
    Sketcher.Constraint("Horizontal", 4, 2, 8, 2),
    Sketcher.Constraint("Horizontal", 2, 2, 10, 2),
    Sketcher.Constraint("Horizontal", 6, 2, 14, 2),
    Sketcher.Constraint("Vertical", 3, 2, 6, 2),
    Sketcher.Constraint("Vertical", 10, 2, 13, 2),
    Sketcher.Constraint("Equal", 3, 7),
    Sketcher.Constraint("DistanceY", 1, 1, 1, 2, Q("430 mm")),
    Sketcher.Constraint("DistanceY", 3, 2, 3, 1, Q("10 mm")),
    Sketcher.Constraint("DistanceX", -1, 1, 0, 2, Q("230 mm")),
    Sketcher.Constraint("DistanceX", -1, 1, 4, 2, Q("225 mm")),
    Sketcher.Constraint("DistanceX", -1, 1, 8, 2, Q("5 mm")),
    Sketcher.Constraint("DistanceX", 0, 1, 0, 2, Q("19.940905 mm")),
    Sketcher.Constraint("DistanceX", 9, 1, 9, 2, Q("15.031984 mm")),
])
pad5 = body.newObject("PartDesign::Pad", "Pad004")
pad5.Profile = sketch7
pad5.Length = 38.4

sketch8 = body.newObject("Sketcher::SketchObject", "Sketch007")
sketch8.AttachmentSupport = (doc.getObject("YZ_Plane"), [""])
sketch8.MapMode = "FlatFace"
sketch8.addGeometry([
    Part.LineSegment(App.Vector(-60.4, 0, 0), App.Vector(-66.4, 0, 0)),
    Part.LineSegment(App.Vector(-66.4, 0, 0), App.Vector(-66.4, 430, 0)),
    Part.LineSegment(App.Vector(-66.4, 430, 0), App.Vector(-60.4, 430, 0)),
    Part.LineSegment(App.Vector(-60.4, 430, 0), App.Vector(-60.4, 0, 0)),
], False)
sketch8.addConstraint([
    Sketcher.Constraint("Coincident", 0, 2, 1, 1),
    Sketcher.Constraint("Coincident", 1, 2, 2, 1),
    Sketcher.Constraint("Coincident", 2, 2, 3, 1),
    Sketcher.Constraint("Coincident", 3, 2, 0, 1),
    Sketcher.Constraint("Horizontal", 0),
    Sketcher.Constraint("Vertical", 1),
    Sketcher.Constraint("Horizontal", 2),
    Sketcher.Constraint("Vertical", 3),
    Sketcher.Constraint("PointOnObject", 0, 2, -1),
    Sketcher.Constraint("DistanceX", 0, 2, 0, 1, Q("6 mm")),
    Sketcher.Constraint("DistanceY", 1, 1, 1, 2, Q("430 mm")),
    Sketcher.Constraint("DistanceX", 0, 2, -1, 1, Q("66.4 mm")),
])
pocket3 = body.newObject("PartDesign::Pocket", "Pocket002")
pocket3.Profile = sketch8
pocket3.Length = 500
pocket3.Reversed = True

sketch9 = body.newObject("Sketcher::SketchObject", "Sketch008")
sketch9.AttachmentSupport = (doc.getObject("XZ_Plane"), [""])
sketch9.MapMode = "FlatFace"
sketch9.AttachmentOffset = App.Placement(App.Vector(0, 0, 60.4), App.Rotation())
sketch9.addGeometry([
    Part.LineSegment(App.Vector(5, 420, 0), App.Vector(20.031984, 420, 0)),
    Part.LineSegment(App.Vector(20.031984, 420, 0), App.Vector(20.031984, 430, 0)),
    Part.LineSegment(App.Vector(20.031984, 430, 0), App.Vector(0, 430, 0)),
    Part.LineSegment(App.Vector(0, 430, 0), App.Vector(0, 0, 0)),
    Part.LineSegment(App.Vector(0, 0, 0), App.Vector(20.031984, 0, 0)),
    Part.LineSegment(App.Vector(20.031984, 0, 0), App.Vector(20.031984, 10, 0)),
    Part.LineSegment(App.Vector(20.031984, 10, 0), App.Vector(5, 10, 0)),
    Part.LineSegment(App.Vector(5, 10, 0), App.Vector(5, 420, 0)),
], False)
sketch9.addConstraint([
    Sketcher.Constraint("Coincident", 0, 2, 1, 1),
    Sketcher.Constraint("Coincident", 1, 2, 2, 1),
    Sketcher.Constraint("Coincident", 2, 2, 3, 1),
    Sketcher.Constraint("Coincident", 3, 2, 4, 1),
    Sketcher.Constraint("Coincident", 4, 2, 5, 1),
    Sketcher.Constraint("Coincident", 5, 2, 6, 1),
    Sketcher.Constraint("Coincident", 6, 2, 7, 1),
    Sketcher.Constraint("Coincident", 7, 2, 0, 1),
    Sketcher.Constraint("Horizontal", 0),
    Sketcher.Constraint("Vertical", 1),
    Sketcher.Constraint("Horizontal", 2),
    Sketcher.Constraint("Vertical", 3),
    Sketcher.Constraint("Horizontal", 4),
    Sketcher.Constraint("Vertical", 5),
    Sketcher.Constraint("Horizontal", 6),
    Sketcher.Constraint("Vertical", 7),
    Sketcher.Constraint("Coincident", 3, 2, -1, 1),
    Sketcher.Constraint("Vertical", 1, 2, 4, 2),
    Sketcher.Constraint("Equal", 1, 5),
    Sketcher.Constraint("DistanceY", 1, 1, 1, 2, Q("10 mm")),
    Sketcher.Constraint("DistanceY", 3, 2, 3, 1, Q("430 mm")),
    Sketcher.Constraint("DistanceX", -1, 1, 6, 2, Q("5 mm")),
    Sketcher.Constraint("DistanceX", 0, 1, 0, 2, Q("15.031984 mm")),
])
pad6 = body.newObject("PartDesign::Pad", "Pad005")
pad6.Profile = sketch9
pad6.Length = 15

sketch10 = body.newObject("Sketcher::SketchObject", "Sketch009")
sketch10.AttachmentSupport = (doc.getObject("XZ_Plane"), [""])
sketch10.MapMode = "FlatFace"
sketch10.AttachmentOffset = App.Placement(App.Vector(0, 0, 60.4), App.Rotation())
sketch10.addGeometry([
    Part.LineSegment(App.Vector(210.059095, 430, 0), App.Vector(210.059095, 420, 0)),
    Part.LineSegment(App.Vector(210.059095, 420, 0), App.Vector(225, 420, 0)),
    Part.LineSegment(App.Vector(225, 420, 0), App.Vector(225, 10, 0)),
    Part.LineSegment(App.Vector(225, 10, 0), App.Vector(210.059095, 10, 0)),
    Part.LineSegment(App.Vector(210.059095, 10, 0), App.Vector(210.059095, 0, 0)),
    Part.LineSegment(App.Vector(210.059095, 0, 0), App.Vector(230, 0, 0)),
    Part.LineSegment(App.Vector(230, 0, 0), App.Vector(230, 430, 0)),
    Part.LineSegment(App.Vector(230, 430, 0), App.Vector(210.059095, 430, 0)),
], False)
sketch10.addConstraint([
    Sketcher.Constraint("Coincident", 0, 2, 1, 1),
    Sketcher.Constraint("Coincident", 1, 2, 2, 1),
    Sketcher.Constraint("Coincident", 2, 2, 3, 1),
    Sketcher.Constraint("Coincident", 3, 2, 4, 1),
    Sketcher.Constraint("Coincident", 4, 2, 5, 1),
    Sketcher.Constraint("Coincident", 5, 2, 6, 1),
    Sketcher.Constraint("Coincident", 6, 2, 7, 1),
    Sketcher.Constraint("Coincident", 7, 2, 0, 1),
    Sketcher.Constraint("Vertical", 0),
    Sketcher.Constraint("Horizontal", 1),
    Sketcher.Constraint("Vertical", 2),
    Sketcher.Constraint("Horizontal", 3),
    Sketcher.Constraint("Vertical", 4),
    Sketcher.Constraint("Horizontal", 5),
    Sketcher.Constraint("Vertical", 6),
    Sketcher.Constraint("Horizontal", 7),
    Sketcher.Constraint("PointOnObject", 4, 2, -1),
    Sketcher.Constraint("Vertical", 0, 2, 3, 2),
    Sketcher.Constraint("Equal", 0, 4),
    Sketcher.Constraint("DistanceY", 0, 2, 0, 1, Q("10 mm")),
    Sketcher.Constraint("DistanceY", 2, 2, 2, 1, Q("410 mm")),
    Sketcher.Constraint("DistanceX", -1, 1, 1, 2, Q("225 mm")),
    Sketcher.Constraint("DistanceX", -1, 1, 5, 2, Q("230 mm")),
    Sketcher.Constraint("DistanceX", 1, 1, 1, 2, Q("14.940905 mm")),
])
pad7 = body.newObject("PartDesign::Pad", "Pad006")
pad7.Profile = sketch10
pad7.Length = 15

doc.recompute()
